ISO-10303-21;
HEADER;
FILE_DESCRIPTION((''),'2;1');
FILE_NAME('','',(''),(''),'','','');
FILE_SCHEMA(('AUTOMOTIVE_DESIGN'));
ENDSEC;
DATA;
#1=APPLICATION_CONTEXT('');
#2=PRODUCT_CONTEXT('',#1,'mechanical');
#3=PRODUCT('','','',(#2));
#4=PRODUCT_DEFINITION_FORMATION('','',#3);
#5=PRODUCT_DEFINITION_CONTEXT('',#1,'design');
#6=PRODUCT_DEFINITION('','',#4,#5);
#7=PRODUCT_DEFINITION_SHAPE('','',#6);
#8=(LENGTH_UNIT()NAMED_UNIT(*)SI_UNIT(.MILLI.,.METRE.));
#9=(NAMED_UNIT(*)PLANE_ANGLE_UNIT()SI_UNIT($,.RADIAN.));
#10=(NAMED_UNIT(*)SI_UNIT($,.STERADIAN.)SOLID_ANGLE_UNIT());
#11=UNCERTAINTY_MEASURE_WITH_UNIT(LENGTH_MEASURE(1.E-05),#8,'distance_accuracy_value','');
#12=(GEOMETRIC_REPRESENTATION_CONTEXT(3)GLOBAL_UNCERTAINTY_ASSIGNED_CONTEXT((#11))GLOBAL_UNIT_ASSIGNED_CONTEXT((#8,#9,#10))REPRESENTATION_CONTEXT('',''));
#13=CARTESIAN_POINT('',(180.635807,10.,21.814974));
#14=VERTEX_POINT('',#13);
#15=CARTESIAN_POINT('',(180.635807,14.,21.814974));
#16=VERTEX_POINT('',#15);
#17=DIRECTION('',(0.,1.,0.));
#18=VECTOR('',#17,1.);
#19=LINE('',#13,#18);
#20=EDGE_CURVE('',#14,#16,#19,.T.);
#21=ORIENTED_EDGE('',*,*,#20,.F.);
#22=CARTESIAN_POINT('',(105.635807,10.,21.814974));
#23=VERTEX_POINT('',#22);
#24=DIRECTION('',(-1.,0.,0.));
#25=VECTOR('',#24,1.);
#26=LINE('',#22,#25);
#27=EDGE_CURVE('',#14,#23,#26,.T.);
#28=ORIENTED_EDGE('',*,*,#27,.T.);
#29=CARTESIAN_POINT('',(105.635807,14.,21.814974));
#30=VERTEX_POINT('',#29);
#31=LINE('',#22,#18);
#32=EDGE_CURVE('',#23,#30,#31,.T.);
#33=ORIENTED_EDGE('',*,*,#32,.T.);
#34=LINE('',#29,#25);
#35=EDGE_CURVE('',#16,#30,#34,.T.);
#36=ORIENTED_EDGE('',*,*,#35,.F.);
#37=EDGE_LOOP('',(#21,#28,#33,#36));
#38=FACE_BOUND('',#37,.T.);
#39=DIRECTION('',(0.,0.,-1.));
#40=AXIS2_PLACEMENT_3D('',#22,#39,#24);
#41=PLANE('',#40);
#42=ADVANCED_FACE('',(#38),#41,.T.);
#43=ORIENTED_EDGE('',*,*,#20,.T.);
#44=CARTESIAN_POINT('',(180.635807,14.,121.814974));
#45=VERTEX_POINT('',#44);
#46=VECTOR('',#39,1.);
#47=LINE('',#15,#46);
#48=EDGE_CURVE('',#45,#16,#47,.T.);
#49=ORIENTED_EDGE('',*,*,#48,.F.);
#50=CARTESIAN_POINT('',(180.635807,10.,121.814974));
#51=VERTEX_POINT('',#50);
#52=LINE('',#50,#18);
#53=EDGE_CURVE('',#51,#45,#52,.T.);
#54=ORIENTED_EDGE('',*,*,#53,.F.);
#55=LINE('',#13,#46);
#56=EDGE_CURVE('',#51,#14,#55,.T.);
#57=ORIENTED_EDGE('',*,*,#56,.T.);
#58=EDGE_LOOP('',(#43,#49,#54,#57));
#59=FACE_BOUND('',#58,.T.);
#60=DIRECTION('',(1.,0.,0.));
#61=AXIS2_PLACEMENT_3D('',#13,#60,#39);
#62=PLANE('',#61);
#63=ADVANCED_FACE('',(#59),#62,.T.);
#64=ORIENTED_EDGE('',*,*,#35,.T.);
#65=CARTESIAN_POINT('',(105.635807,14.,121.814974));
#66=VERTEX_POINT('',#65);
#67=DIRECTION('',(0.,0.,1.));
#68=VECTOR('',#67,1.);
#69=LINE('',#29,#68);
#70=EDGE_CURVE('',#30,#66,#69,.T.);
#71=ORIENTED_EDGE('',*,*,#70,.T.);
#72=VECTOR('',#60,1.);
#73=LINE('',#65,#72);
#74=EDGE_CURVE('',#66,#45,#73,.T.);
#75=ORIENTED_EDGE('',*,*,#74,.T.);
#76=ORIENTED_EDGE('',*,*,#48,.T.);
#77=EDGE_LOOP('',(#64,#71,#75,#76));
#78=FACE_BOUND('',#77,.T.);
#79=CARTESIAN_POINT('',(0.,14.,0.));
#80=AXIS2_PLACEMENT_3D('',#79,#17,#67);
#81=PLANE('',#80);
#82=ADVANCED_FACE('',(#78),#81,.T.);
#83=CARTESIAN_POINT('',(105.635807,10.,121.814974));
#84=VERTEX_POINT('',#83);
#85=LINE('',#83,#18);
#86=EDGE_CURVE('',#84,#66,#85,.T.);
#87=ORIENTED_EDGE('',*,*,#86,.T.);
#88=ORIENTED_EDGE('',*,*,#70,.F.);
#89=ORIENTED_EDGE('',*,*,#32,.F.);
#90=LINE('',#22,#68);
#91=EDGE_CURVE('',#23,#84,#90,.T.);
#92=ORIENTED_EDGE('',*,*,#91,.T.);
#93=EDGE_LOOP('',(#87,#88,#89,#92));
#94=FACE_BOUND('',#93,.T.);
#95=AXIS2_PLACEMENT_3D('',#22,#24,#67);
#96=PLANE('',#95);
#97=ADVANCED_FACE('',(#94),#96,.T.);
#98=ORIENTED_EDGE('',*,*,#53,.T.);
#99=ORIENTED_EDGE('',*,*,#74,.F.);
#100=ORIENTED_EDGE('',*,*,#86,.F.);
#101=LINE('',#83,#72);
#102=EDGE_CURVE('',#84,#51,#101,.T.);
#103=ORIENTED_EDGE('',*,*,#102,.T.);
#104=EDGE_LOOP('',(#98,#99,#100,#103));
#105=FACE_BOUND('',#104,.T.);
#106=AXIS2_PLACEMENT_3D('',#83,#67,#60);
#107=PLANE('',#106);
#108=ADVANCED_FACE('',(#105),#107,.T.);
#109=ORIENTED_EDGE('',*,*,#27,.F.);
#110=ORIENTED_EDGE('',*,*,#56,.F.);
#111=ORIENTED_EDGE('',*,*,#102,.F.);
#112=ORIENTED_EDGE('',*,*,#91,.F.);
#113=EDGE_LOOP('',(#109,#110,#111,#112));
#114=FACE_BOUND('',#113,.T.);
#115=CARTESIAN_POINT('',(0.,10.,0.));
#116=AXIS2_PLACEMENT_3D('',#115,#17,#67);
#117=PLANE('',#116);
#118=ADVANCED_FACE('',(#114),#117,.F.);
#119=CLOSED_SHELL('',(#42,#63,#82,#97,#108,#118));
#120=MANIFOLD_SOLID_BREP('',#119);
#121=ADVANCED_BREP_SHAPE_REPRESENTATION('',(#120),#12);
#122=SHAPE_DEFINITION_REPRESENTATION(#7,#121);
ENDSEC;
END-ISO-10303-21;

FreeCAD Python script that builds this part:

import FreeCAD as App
import Part
import Sketcher
from FreeCAD import Vector

doc = App.newDocument("Part")
body = doc.addObject("PartDesign::Body", "Body")

# Sketch on XZ plane
sketch1 = body.newObject("Sketcher::SketchObject", "Sketch")
sketch1.AttachmentSupport = (doc.getObject("XZ_Plane"), [""])
sketch1.MapMode = "FlatFace"
sketch1.AttachmentOffset = App.Placement(Vector(0, 0, -10), App.Rotation())
sketch1.addGeometry(Part.LineSegment(Vector(181, 22, 0), Vector(106, 22, 0)), False)
sketch1.addGeometry(Part.LineSegment(Vector(106, 22, 0), Vector(106, 122, 0)), False)
sketch1.addGeometry(Part.LineSegment(Vector(106, 122, 0), Vector(181, 122, 0)), False)
sketch1.addGeometry(Part.LineSegment(Vector(181, 122, 0), Vector(181, 22, 0)), False)
sketch1.addConstraint(Sketcher.Constraint("Coincident", 0, 2, 1, 1))
sketch1.addConstraint(Sketcher.Constraint("Coincident", 1, 2, 2, 1))
sketch1.addConstraint(Sketcher.Constraint("Coincident", 2, 2, 3, 1))
sketch1.addConstraint(Sketcher.Constraint("Coincident", 3, 2, 0, 1))
sketch1.addConstraint(Sketcher.Constraint("Horizontal", 0))
sketch1.addConstraint(Sketcher.Constraint("Vertical", 1))
sketch1.addConstraint(Sketcher.Constraint("Horizontal", 2))
sketch1.addConstraint(Sketcher.Constraint("Vertical", 3))
sketch1.addConstraint(Sketcher.Constraint("DistanceX", 0, 2, 0, 1, 75.0))
sketch1.addConstraint(Sketcher.Constraint("DistanceY", 1, 1, 1, 2, 100.0))
sketch1.addConstraint(Sketcher.Constraint("DistanceX", -1, 1, 0, 2, 105.635807))
sketch1.addConstraint(Sketcher.Constraint("DistanceY", -1, 1, 0, 2, 21.814974))
pad1 = body.newObject("PartDesign::Pad", "Pad")
pad1.Profile = sketch1
pad1.Length = 4
pad1.Reversed = True

doc.recompute()
